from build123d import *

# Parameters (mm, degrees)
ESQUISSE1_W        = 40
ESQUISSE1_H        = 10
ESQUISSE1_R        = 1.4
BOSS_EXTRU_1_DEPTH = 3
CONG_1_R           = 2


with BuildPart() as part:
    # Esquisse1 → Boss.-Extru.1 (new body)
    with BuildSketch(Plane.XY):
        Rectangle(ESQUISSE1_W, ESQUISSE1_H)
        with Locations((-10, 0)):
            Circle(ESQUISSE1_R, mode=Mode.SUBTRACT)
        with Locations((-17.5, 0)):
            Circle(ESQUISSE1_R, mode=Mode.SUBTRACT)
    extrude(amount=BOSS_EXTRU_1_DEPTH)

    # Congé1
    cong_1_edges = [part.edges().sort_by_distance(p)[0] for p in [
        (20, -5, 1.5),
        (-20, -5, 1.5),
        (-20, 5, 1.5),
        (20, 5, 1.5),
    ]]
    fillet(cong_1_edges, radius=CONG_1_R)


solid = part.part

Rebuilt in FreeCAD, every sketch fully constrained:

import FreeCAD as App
import Part
import Sketcher
Q = App.Units.Quantity


def edges_at(feature, points):
    """Names of the edges that pass closest to the given points."""
    edges = feature.Shape.Edges
    near = lambda p: min(range(len(edges)), key=lambda i: edges[i].distToShape(Part.Vertex(*p))[0])
    return sorted({f"Edge{near(p) + 1}" for p in points})


def add_polygon(sketch, points):
    """Adds a closed chain of lines whose ends are joined by coincident constraints."""
    first, n = sketch.GeometryCount, len(points)
    for a, b in zip(points, points[1:] + points[:1]):
        sketch.addGeometry(Part.LineSegment(App.Vector(*a, 0), App.Vector(*b, 0)), False)
    for i in range(n):
        sketch.addConstraint(Sketcher.Constraint("Coincident", first + i, 2, first + (i + 1) % n, 1))

doc = App.newDocument("Part")
body = doc.addObject("PartDesign::Body", "Body")

# Sketch on XY plane
sketch1 = body.newObject("Sketcher::SketchObject", "Sketch")
sketch1.AttachmentSupport = (doc.getObject("XY_Plane"), [""])
sketch1.MapMode = "FlatFace"
add_polygon(sketch1, [(-20, 5), (-20, -5), (20, -5), (20, 5)])  # lines 0-3
sketch1.addGeometry(Part.Circle(App.Vector(-17.5, 0, 0), App.Vector(0, 0, 1), 1.4), False)  # 4
sketch1.addGeometry(Part.Circle(App.Vector(-10, 0, 0), App.Vector(0, 0, 1), 1.4), False)  # 5
sketch1.addConstraint(Sketcher.Constraint("Vertical", 0))
sketch1.addConstraint(Sketcher.Constraint("Horizontal", 1))
sketch1.addConstraint(Sketcher.Constraint("Vertical", 2))
sketch1.addConstraint(Sketcher.Constraint("Horizontal", 3))
sketch1.addConstraint(Sketcher.Constraint("Equal", 4, 5))
sketch1.addConstraint(Sketcher.Constraint("Symmetric", 0, 2, 2, 2, -1, 1))
sketch1.addConstraint(Sketcher.Constraint("PointOnObject", 4, 3, -1))
sketch1.addConstraint(Sketcher.Constraint("PointOnObject", 5, 3, -1))
sketch1.addConstraint(Sketcher.Constraint("Diameter", 4, Q("2.8 mm")))
sketch1.addConstraint(Sketcher.Constraint("DistanceX", 1, 1, 1, 2, Q("40 mm")))
sketch1.addConstraint(Sketcher.Constraint("DistanceY", 0, 2, 0, 1, Q("10 mm")))
sketch1.addConstraint(Sketcher.Constraint("DistanceX", 5, 3, -1, 1, Q("10 mm")))
sketch1.addConstraint(Sketcher.Constraint("DistanceX", 4, 3, -1, 1, Q("17.5 mm")))
pad1 = body.newObject("PartDesign::Pad", "Pad")
pad1.Profile = sketch1
pad1.Length = 3
doc.recompute()

fillet = body.newObject("PartDesign::Fillet", "Fillet")
fillet.Base = (pad1, edges_at(pad1, [
    (20, -5, 1.5),
    (-20, -5, 1.5),
    (-20, 5, 1.5),
    (20, 5, 1.5),
]))
fillet.Radius = 2

doc.recompute()
